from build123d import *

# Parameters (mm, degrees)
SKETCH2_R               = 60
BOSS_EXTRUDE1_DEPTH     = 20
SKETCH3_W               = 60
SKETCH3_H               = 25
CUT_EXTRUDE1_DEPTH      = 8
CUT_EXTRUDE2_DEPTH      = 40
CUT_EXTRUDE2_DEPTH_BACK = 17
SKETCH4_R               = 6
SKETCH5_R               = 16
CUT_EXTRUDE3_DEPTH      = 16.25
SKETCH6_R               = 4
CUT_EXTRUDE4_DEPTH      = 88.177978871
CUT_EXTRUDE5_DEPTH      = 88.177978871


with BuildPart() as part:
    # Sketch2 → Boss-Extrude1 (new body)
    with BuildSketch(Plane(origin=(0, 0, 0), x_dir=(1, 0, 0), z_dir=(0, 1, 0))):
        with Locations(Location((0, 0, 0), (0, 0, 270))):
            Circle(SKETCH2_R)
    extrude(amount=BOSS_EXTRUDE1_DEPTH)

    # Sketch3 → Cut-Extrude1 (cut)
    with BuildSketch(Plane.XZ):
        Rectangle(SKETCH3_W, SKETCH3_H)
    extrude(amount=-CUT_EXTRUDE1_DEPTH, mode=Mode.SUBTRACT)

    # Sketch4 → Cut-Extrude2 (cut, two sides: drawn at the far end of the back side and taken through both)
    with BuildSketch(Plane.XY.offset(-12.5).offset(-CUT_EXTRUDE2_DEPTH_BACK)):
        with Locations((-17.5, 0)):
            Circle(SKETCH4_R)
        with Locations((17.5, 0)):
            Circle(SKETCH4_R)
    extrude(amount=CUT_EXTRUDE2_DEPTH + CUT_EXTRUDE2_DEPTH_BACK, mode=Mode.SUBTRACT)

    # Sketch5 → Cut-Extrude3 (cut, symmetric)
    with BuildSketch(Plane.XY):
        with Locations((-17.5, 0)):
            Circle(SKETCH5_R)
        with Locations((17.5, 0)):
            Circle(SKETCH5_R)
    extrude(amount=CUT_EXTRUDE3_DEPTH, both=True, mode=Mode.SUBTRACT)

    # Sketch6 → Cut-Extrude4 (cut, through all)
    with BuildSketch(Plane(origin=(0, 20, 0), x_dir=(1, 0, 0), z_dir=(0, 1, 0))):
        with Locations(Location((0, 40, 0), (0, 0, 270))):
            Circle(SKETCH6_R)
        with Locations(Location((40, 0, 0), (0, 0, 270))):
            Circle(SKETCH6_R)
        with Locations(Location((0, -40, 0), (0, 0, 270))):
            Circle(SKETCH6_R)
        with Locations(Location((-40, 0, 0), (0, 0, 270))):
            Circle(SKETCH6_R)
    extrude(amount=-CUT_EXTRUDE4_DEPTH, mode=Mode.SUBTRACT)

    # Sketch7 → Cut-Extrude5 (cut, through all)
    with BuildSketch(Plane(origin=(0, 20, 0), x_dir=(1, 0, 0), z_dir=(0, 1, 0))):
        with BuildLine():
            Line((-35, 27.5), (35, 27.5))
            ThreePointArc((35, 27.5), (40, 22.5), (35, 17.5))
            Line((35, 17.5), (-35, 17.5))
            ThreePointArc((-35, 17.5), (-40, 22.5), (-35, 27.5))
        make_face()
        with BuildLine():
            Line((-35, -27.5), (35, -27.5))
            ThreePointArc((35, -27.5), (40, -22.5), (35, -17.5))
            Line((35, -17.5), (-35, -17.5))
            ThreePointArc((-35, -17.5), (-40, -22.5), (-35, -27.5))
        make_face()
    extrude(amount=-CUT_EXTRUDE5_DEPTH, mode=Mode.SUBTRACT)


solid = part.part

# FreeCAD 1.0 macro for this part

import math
import FreeCAD as App
import Part
import Sketcher
Q = App.Units.Quantity

doc = App.newDocument("Part")
body = doc.addObject("PartDesign::Body", "Body")

# Sketch on XZ plane
sketch1 = body.newObject("Sketcher::SketchObject", "Sketch")
sketch1.AttachmentSupport = (doc.getObject("XZ_Plane"), [""])
sketch1.MapMode = "FlatFace"
sketch1.addGeometry(Part.Circle(App.Vector(0, 0, 0), App.Vector(0, 0, 1), 60), False)
sketch1.addConstraint([
    Sketcher.Constraint("Coincident", 0, 3, -1, 1),
    Sketcher.Constraint("Diameter", 0, Q("120 mm")),
])
pad1 = body.newObject("PartDesign::Pad", "Pad")
pad1.Profile = sketch1
pad1.Length = 20
pad1.Reversed = True

# Sketch on XZ plane
sketch2 = body.newObject("Sketcher::SketchObject", "Sketch001")
sketch2.AttachmentSupport = (doc.getObject("XZ_Plane"), [""])
sketch2.MapMode = "FlatFace"
sketch2.addGeometry([
    Part.LineSegment(App.Vector(-30, 12, 0), App.Vector(-30, -12, 0)),
    Part.LineSegment(App.Vector(-30, -12, 0), App.Vector(30, -12, 0)),
    Part.LineSegment(App.Vector(30, -12, 0), App.Vector(30, 12, 0)),
    Part.LineSegment(App.Vector(30, 12, 0), App.Vector(-30, 12, 0)),
], False)
sketch2.addConstraint([
    Sketcher.Constraint("Coincident", 0, 2, 1, 1),
    Sketcher.Constraint("Coincident", 1, 2, 2, 1),
    Sketcher.Constraint("Coincident", 2, 2, 3, 1),
    Sketcher.Constraint("Coincident", 3, 2, 0, 1),
    Sketcher.Constraint("Vertical", 0),
    Sketcher.Constraint("Horizontal", 1),
    Sketcher.Constraint("Vertical", 2),
    Sketcher.Constraint("Horizontal", 3),
    Sketcher.Constraint("Symmetric", 0, 2, 2, 2, -1, 1),
    Sketcher.Constraint("DistanceX", 1, 1, 1, 2, Q("60 mm")),
    Sketcher.Constraint("DistanceY", 0, 2, 0, 1, Q("25 mm")),
])
pocket1 = body.newObject("PartDesign::Pocket", "Pocket")
pocket1.Profile = sketch2
pocket1.Length = 8

# Sketch on XY plane
sketch3 = body.newObject("Sketcher::SketchObject", "Sketch002")
sketch3.AttachmentSupport = (doc.getObject("XY_Plane"), [""])
sketch3.MapMode = "FlatFace"
sketch3.AttachmentOffset = App.Placement(App.Vector(0, 0, -12.5), App.Rotation())
sketch3.addGeometry([
    Part.Circle(App.Vector(-18, 0, 0), App.Vector(0, 0, 1), 6),
    Part.Circle(App.Vector(18, 0, 0), App.Vector(0, 0, 1), 6),
], False)
sketch3.addConstraint([
    Sketcher.Constraint("Equal", 0, 1),
    Sketcher.Constraint("Symmetric", 0, 3, 1, 3, -1, 1),
    Sketcher.Constraint("PointOnObject", 0, 3, -1),
    Sketcher.Constraint("Diameter", 0, Q("12 mm")),
    Sketcher.Constraint("DistanceX", 0, 3, 1, 3, Q("35 mm")),
])
pocket2 = body.newObject("PartDesign::Pocket", "Pocket001")
pocket2.Profile = sketch3
pocket2.Type = "TwoLengths"
pocket2.Length = 40
pocket2.Length2 = 17
pocket2.Reversed = True

# Sketch on XY plane
sketch4 = body.newObject("Sketcher::SketchObject", "Sketch003")
sketch4.AttachmentSupport = (doc.getObject("XY_Plane"), [""])
sketch4.MapMode = "FlatFace"
sketch4.addGeometry([
    Part.Circle(App.Vector(-18, 0, 0), App.Vector(0, 0, 1), 16),
    Part.Circle(App.Vector(18, 0, 0), App.Vector(0, 0, 1), 16),
], False)
sketch4.addConstraint([
    Sketcher.Constraint("Equal", 0, 1),
    Sketcher.Constraint("Symmetric", 0, 3, 1, 3, -1, 1),
    Sketcher.Constraint("PointOnObject", 0, 3, -1),
    Sketcher.Constraint("Diameter", 0, Q("32 mm")),
    Sketcher.Constraint("DistanceX", 0, 3, 1, 3, Q("35 mm")),
])
pocket3 = body.newObject("PartDesign::Pocket", "Pocket002")
pocket3.Profile = sketch4
pocket3.Length = 32.5
pocket3.Midplane = True

# Sketch on XZ plane
sketch5 = body.newObject("Sketcher::SketchObject", "Sketch004")
sketch5.AttachmentSupport = (doc.getObject("XZ_Plane"), [""])
sketch5.MapMode = "FlatFace"
sketch5.AttachmentOffset = App.Placement(App.Vector(0, 0, -20), App.Rotation())
sketch5.addGeometry([
    Part.Circle(App.Vector(0, -40, 0), App.Vector(0, 0, 1), 4),
    Part.Circle(App.Vector(40, 0, 0), App.Vector(0, 0, 1), 4),
    Part.Circle(App.Vector(0, 40, 0), App.Vector(0, 0, 1), 4),
    Part.Circle(App.Vector(-40, 0, 0), App.Vector(0, 0, 1), 4),
], False)
sketch5.addConstraint([
    Sketcher.Constraint("Equal", 0, 1),
    Sketcher.Constraint("Equal", 1, 2),
    Sketcher.Constraint("Equal", 2, 3),
    Sketcher.Constraint("Symmetric", 0, 3, 2, 3, -1, 1),
    Sketcher.Constraint("Symmetric", 1, 3, 3, 3, -1, 1),
    Sketcher.Constraint("PointOnObject", 0, 3, -2),
    Sketcher.Constraint("PointOnObject", 1, 3, -1),
    Sketcher.Constraint("Diameter", 0, Q("8 mm")),
    Sketcher.Constraint("DistanceY", 0, 3, -1, 1, Q("40 mm")),
    Sketcher.Constraint("DistanceX", -1, 1, 1, 3, Q("40 mm")),
])
pocket4 = body.newObject("PartDesign::Pocket", "Pocket003")
pocket4.Profile = sketch5
pocket4.Type = "ThroughAll"
pocket4.Reversed = True

# Sketch on XZ plane
sketch6 = body.newObject("Sketcher::SketchObject", "Sketch005")
sketch6.AttachmentSupport = (doc.getObject("XZ_Plane"), [""])
sketch6.MapMode = "FlatFace"
sketch6.AttachmentOffset = App.Placement(App.Vector(0, 0, -20), App.Rotation())
sketch6.addGeometry([
    Part.LineSegment(App.Vector(35, -28, 0), App.Vector(-35, -28, 0)),  # 0
    Part.ArcOfCircle(Part.Circle(App.Vector(-35, -22, 0), App.Vector(0, 0, 1), 5), math.radians(90), math.radians(270)),  # 1
    Part.LineSegment(App.Vector(-35, -18, 0), App.Vector(35, -18, 0)),  # 2
    Part.ArcOfCircle(Part.Circle(App.Vector(35, -22, 0), App.Vector(0, 0, 1), 5), math.radians(-90), math.radians(90)),  # 3
    Part.LineSegment(App.Vector(-35, 28, 0), App.Vector(35, 28, 0)),  # 4
    Part.ArcOfCircle(Part.Circle(App.Vector(35, 22, 0), App.Vector(0, 0, 1), 5), math.radians(-90), math.radians(90)),  # 5
    Part.LineSegment(App.Vector(35, 18, 0), App.Vector(-35, 18, 0)),  # 6
    Part.ArcOfCircle(Part.Circle(App.Vector(-35, 22, 0), App.Vector(0, 0, 1), 5), math.radians(90), math.radians(270)),  # 7
], False)
sketch6.addConstraint([
    Sketcher.Constraint("Tangent", 0, 2, 1, 2),
    Sketcher.Constraint("Tangent", 1, 1, 2, 1),
    Sketcher.Constraint("Tangent", 2, 2, 3, 2),
    Sketcher.Constraint("Tangent", 3, 1, 0, 1),
    Sketcher.Constraint("Tangent", 4, 2, 5, 2),
    Sketcher.Constraint("Tangent", 5, 1, 6, 1),
    Sketcher.Constraint("Tangent", 6, 2, 7, 2),
    Sketcher.Constraint("Tangent", 7, 1, 4, 1),
    Sketcher.Constraint("Horizontal", 0),
    Sketcher.Constraint("Horizontal", 2),
    Sketcher.Constraint("Horizontal", 4),
    Sketcher.Constraint("Horizontal", 6),
    Sketcher.Constraint("Equal", 3, 5),
    Sketcher.Constraint("Symmetric", 1, 3, 5, 3, -1, 1),
    Sketcher.Constraint("Vertical", 3, 3, 5, 3),
    Sketcher.Constraint("Vertical", 1, 3, 7, 3),
    Sketcher.Constraint("Radius", 1, Q("5 mm")),
    Sketcher.Constraint("DistanceX", 0, 2, 0, 1, Q("70 mm")),
    Sketcher.Constraint("DistanceY", 3, 3, 5, 3, Q("45 mm")),
])
pocket5 = body.newObject("PartDesign::Pocket", "Pocket004")
pocket5.Profile = sketch6
pocket5.Type = "ThroughAll"
pocket5.Reversed = True

doc.recompute()
